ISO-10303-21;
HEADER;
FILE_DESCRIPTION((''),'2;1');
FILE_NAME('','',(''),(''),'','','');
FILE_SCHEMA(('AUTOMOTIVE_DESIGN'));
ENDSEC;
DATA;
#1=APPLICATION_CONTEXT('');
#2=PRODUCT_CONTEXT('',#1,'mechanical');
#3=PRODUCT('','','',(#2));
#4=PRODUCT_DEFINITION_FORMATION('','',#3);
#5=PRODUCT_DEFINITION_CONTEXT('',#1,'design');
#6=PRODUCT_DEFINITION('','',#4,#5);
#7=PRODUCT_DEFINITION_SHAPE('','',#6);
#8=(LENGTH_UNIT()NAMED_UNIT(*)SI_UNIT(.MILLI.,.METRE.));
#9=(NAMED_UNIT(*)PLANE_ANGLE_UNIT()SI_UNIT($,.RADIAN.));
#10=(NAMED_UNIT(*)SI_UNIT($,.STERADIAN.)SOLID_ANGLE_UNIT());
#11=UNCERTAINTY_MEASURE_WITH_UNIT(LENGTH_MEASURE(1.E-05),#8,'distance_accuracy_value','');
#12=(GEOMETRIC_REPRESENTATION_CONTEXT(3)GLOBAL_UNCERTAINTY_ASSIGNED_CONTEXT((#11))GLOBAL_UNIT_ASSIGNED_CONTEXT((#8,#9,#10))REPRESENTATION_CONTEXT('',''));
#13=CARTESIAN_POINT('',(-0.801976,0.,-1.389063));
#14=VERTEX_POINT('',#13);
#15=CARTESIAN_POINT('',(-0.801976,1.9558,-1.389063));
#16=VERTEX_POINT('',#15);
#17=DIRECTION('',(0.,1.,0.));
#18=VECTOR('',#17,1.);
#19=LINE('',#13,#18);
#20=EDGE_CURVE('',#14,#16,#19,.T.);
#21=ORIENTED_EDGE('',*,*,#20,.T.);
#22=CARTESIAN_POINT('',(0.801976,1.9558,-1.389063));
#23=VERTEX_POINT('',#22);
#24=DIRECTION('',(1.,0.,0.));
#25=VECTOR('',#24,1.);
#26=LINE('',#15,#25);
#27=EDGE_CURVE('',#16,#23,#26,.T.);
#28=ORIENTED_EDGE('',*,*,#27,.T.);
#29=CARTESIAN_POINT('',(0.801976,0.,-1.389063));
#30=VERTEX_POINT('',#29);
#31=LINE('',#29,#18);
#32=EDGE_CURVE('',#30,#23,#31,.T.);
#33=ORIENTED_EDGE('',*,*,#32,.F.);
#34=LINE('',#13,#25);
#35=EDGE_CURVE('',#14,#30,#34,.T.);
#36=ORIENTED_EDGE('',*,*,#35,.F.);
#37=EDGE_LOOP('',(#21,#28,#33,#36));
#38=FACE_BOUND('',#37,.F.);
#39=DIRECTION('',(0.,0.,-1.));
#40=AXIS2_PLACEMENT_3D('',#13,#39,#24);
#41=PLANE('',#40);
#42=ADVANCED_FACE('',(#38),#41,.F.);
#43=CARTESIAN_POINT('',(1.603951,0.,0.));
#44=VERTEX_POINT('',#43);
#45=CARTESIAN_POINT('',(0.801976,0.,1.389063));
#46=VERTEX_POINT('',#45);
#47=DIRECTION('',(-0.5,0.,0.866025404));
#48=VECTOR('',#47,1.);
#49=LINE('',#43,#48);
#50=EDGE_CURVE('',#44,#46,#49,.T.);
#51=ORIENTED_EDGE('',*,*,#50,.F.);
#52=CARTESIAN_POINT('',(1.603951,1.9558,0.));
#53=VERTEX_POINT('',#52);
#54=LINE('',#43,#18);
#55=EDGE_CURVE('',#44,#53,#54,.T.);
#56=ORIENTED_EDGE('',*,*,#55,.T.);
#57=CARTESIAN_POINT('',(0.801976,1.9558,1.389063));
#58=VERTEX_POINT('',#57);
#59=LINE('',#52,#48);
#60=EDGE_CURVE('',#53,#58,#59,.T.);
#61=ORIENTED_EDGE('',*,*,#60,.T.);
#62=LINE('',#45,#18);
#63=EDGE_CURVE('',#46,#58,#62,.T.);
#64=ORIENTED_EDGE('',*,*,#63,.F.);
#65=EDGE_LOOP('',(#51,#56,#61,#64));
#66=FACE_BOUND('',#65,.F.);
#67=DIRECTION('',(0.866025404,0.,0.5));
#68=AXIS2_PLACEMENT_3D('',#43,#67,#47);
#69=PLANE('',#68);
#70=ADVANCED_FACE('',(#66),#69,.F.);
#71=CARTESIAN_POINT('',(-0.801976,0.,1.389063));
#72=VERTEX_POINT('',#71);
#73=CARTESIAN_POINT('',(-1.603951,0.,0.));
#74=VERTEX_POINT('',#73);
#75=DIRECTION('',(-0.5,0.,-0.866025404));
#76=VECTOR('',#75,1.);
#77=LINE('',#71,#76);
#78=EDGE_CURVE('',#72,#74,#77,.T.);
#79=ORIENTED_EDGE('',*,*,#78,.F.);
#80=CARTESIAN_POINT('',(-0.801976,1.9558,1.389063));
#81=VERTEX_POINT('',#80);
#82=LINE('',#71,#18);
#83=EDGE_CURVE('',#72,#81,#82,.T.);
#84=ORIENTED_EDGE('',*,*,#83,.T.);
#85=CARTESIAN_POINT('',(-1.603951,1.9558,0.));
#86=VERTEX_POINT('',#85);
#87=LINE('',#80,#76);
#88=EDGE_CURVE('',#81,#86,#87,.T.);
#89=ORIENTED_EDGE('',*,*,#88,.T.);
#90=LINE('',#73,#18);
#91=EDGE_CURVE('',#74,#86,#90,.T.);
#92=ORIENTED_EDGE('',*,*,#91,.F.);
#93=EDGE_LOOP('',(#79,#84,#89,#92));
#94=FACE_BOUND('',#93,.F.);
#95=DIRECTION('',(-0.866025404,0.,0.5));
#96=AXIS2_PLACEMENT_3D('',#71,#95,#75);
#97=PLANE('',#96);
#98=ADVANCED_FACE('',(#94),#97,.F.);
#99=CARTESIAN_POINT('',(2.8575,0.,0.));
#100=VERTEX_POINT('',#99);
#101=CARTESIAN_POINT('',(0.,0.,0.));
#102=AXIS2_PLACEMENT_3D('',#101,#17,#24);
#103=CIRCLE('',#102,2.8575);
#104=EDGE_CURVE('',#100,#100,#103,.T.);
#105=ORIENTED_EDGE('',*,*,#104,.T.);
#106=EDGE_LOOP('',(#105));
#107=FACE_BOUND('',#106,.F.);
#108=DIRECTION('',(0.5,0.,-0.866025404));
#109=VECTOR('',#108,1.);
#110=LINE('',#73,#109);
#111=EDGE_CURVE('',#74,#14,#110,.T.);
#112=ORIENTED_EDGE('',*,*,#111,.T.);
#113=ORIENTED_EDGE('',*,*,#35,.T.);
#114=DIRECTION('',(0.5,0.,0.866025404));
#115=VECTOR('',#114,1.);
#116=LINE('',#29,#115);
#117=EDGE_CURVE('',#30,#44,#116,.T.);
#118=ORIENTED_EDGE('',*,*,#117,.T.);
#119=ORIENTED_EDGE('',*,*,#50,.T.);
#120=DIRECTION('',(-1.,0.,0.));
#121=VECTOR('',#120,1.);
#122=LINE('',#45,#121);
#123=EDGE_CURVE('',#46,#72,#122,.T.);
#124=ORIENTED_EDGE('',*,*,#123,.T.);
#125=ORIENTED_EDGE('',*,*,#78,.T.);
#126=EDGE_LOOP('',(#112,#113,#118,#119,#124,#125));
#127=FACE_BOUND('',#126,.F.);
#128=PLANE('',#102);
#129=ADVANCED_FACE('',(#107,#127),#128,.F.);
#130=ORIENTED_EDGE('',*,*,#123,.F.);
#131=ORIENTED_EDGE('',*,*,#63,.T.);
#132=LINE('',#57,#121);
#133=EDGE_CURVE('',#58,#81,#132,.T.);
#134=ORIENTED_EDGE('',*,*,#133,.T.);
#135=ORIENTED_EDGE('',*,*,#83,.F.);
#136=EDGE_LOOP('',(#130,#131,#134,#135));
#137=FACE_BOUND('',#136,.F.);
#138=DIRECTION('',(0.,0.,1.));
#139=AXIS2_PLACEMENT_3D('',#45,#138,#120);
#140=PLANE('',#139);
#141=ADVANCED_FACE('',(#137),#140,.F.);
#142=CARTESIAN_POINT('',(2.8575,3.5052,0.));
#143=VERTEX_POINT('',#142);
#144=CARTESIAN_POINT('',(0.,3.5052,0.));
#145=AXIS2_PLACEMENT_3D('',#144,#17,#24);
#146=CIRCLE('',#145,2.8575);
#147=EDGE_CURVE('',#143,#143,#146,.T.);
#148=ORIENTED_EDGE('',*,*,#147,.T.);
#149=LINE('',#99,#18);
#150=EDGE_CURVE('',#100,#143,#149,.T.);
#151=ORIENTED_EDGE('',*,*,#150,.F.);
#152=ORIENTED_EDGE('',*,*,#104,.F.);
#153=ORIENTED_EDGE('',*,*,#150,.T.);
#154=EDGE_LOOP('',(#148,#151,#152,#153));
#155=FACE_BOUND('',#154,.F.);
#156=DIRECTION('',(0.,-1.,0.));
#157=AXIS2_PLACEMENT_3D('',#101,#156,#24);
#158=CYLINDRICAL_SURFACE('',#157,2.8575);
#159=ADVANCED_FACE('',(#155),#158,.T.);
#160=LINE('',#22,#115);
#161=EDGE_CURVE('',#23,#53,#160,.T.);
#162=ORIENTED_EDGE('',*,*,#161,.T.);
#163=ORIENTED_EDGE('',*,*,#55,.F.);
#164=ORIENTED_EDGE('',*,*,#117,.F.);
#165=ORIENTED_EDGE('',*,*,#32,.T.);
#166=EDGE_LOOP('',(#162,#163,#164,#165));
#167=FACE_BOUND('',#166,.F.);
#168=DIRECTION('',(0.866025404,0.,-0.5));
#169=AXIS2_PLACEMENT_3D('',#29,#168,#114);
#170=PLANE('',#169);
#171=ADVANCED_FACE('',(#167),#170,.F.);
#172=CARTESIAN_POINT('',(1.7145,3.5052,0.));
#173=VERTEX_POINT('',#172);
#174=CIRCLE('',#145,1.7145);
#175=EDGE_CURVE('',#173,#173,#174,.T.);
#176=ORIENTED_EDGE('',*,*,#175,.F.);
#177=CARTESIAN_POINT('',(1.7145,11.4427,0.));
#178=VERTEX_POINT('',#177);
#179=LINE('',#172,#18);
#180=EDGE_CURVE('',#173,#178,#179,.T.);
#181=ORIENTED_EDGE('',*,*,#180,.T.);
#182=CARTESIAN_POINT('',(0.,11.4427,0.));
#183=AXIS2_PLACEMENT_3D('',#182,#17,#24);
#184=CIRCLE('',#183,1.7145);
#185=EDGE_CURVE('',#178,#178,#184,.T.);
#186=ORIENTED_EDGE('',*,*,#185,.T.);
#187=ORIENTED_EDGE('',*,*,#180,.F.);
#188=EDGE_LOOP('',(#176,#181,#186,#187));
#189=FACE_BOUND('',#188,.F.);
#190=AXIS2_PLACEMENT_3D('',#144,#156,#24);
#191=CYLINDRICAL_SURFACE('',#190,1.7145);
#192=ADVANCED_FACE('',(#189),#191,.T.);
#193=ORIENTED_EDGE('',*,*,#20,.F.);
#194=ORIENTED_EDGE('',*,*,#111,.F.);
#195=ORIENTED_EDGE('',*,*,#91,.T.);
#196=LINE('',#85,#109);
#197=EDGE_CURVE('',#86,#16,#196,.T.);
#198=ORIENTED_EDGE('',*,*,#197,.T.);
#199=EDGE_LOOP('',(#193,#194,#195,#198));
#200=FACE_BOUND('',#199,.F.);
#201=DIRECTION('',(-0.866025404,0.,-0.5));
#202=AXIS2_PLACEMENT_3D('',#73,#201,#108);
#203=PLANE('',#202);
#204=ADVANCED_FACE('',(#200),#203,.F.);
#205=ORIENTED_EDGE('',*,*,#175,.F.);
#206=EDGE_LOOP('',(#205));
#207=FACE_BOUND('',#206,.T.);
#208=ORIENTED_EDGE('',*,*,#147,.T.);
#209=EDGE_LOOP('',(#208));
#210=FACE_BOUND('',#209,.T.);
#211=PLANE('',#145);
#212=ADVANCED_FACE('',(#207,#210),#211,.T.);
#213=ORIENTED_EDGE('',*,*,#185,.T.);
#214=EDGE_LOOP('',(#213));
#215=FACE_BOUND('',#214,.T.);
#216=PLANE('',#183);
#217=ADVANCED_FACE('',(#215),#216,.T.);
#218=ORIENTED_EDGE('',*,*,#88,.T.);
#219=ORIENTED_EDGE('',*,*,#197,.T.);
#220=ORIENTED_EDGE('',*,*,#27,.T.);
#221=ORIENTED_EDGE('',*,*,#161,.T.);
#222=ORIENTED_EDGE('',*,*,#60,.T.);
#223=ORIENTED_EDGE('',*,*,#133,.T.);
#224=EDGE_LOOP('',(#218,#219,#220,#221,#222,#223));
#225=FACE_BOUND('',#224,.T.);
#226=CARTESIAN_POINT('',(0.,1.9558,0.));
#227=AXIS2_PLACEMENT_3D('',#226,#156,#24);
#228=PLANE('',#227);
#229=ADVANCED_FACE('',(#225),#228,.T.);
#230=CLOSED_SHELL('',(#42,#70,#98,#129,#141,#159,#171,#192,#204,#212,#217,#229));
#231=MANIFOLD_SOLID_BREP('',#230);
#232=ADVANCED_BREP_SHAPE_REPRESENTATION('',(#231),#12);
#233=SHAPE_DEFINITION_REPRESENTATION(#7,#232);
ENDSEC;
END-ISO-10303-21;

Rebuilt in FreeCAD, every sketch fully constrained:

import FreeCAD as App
import Part
import Sketcher
from FreeCAD import Vector
Q = App.Units.Quantity

doc = App.newDocument("Part")
body = doc.addObject("PartDesign::Body", "Body")

sketch1 = doc.addObject("Sketcher::SketchObject", "Sketch")
body.addObject(sketch1)
sketch1.AttachmentSupport = (doc.XZ_Plane, [""])
sketch1.MapMode = "FlatFace"
sketch1.addGeometry(Part.Circle(Vector(0, 0, 0), Vector(0, 0, 1), 2.9), False)
sketch1.addConstraint(Sketcher.Constraint("Coincident", 0, 3, -1, 1))
sketch1.addConstraint(Sketcher.Constraint("Diameter", 0, Q("0.225 in")))
pad1 = doc.addObject("PartDesign::Pad", "Pad")
body.addObject(pad1)
pad1.Profile = sketch1
pad1.Length = Q("0.138 in")
pad1.Reversed = True

sketch2 = doc.addObject("Sketcher::SketchObject", "Sketch001")
body.addObject(sketch2)
sketch2.AttachmentSupport = (doc.XZ_Plane, [""])
sketch2.MapMode = "FlatFace"
sketch2.addGeometry(Part.LineSegment(Vector(1.6, 0, 0), Vector(0.8, 1.4, 0)), False)
sketch2.addGeometry(Part.LineSegment(Vector(0.8, 1.4, 0), Vector(-0.8, 1.4, 0)), False)
sketch2.addGeometry(Part.LineSegment(Vector(-0.8, 1.4, 0), Vector(-1.6, 0, 0)), False)
sketch2.addGeometry(Part.LineSegment(Vector(-1.6, 0, 0), Vector(-0.8, -1.4, 0)), False)
sketch2.addGeometry(Part.LineSegment(Vector(-0.8, -1.4, 0), Vector(0.8, -1.4, 0)), False)
sketch2.addGeometry(Part.LineSegment(Vector(0.8, -1.4, 0), Vector(1.6, 0, 0)), False)
sketch2.addConstraint(Sketcher.Constraint("Coincident", 0, 2, 1, 1))
sketch2.addConstraint(Sketcher.Constraint("Coincident", 1, 2, 2, 1))
sketch2.addConstraint(Sketcher.Constraint("Coincident", 2, 2, 3, 1))
sketch2.addConstraint(Sketcher.Constraint("Coincident", 3, 2, 4, 1))
sketch2.addConstraint(Sketcher.Constraint("Coincident", 4, 2, 5, 1))
sketch2.addConstraint(Sketcher.Constraint("Coincident", 5, 2, 0, 1))
sketch2.addConstraint(Sketcher.Constraint("Horizontal", 1))
sketch2.addConstraint(Sketcher.Constraint("Horizontal", 4))
sketch2.addConstraint(Sketcher.Constraint("Symmetric", 0, 2, 3, 2, -1, 1))
sketch2.addConstraint(Sketcher.Constraint("Symmetric", 2, 2, 5, 2, -1, 1))
sketch2.addConstraint(Sketcher.Constraint("PointOnObject", 2, 2, -1))
sketch2.addConstraint(Sketcher.Constraint("Parallel", 2, 5))
sketch2.addConstraint(Sketcher.Constraint("Vertical", 1, 2, 3, 2))
sketch2.addConstraint(Sketcher.Constraint("Angle", 0, Q("120 deg")))
sketch2.addConstraint(Sketcher.Constraint("DistanceY", 3, 2, 1, 2, Q("0.109375 in")))
sketch2.addConstraint(Sketcher.Constraint("DistanceX", 1, 2, 1, 1, Q("1.603951 mm")))
pocket1 = doc.addObject("PartDesign::Pocket", "Pocket")
body.addObject(pocket1)
pocket1.Profile = sketch2
pocket1.Length = Q("0.077 in")

sketch3 = doc.addObject("Sketcher::SketchObject", "Sketch002")
body.addObject(sketch3)
sketch3.AttachmentSupport = (doc.XZ_Plane, [""])
sketch3.MapMode = "FlatFace"
sketch3.AttachmentOffset = App.Placement(Vector(0, 0, -0.138 * 25.4), App.Rotation())
sketch3.addGeometry(Part.Circle(Vector(0, 0, 0), Vector(0, 0, 1), 1.7), False)
sketch3.addConstraint(Sketcher.Constraint("Coincident", 0, 3, -1, 1))
sketch3.addConstraint(Sketcher.Constraint("Diameter", 0, Q("0.135 in")))
pad2 = doc.addObject("PartDesign::Pad", "Pad001")
body.addObject(pad2)
pad2.Profile = sketch3
pad2.Length = Q("0.3125 in")
pad2.Reversed = True

doc.recompute()
